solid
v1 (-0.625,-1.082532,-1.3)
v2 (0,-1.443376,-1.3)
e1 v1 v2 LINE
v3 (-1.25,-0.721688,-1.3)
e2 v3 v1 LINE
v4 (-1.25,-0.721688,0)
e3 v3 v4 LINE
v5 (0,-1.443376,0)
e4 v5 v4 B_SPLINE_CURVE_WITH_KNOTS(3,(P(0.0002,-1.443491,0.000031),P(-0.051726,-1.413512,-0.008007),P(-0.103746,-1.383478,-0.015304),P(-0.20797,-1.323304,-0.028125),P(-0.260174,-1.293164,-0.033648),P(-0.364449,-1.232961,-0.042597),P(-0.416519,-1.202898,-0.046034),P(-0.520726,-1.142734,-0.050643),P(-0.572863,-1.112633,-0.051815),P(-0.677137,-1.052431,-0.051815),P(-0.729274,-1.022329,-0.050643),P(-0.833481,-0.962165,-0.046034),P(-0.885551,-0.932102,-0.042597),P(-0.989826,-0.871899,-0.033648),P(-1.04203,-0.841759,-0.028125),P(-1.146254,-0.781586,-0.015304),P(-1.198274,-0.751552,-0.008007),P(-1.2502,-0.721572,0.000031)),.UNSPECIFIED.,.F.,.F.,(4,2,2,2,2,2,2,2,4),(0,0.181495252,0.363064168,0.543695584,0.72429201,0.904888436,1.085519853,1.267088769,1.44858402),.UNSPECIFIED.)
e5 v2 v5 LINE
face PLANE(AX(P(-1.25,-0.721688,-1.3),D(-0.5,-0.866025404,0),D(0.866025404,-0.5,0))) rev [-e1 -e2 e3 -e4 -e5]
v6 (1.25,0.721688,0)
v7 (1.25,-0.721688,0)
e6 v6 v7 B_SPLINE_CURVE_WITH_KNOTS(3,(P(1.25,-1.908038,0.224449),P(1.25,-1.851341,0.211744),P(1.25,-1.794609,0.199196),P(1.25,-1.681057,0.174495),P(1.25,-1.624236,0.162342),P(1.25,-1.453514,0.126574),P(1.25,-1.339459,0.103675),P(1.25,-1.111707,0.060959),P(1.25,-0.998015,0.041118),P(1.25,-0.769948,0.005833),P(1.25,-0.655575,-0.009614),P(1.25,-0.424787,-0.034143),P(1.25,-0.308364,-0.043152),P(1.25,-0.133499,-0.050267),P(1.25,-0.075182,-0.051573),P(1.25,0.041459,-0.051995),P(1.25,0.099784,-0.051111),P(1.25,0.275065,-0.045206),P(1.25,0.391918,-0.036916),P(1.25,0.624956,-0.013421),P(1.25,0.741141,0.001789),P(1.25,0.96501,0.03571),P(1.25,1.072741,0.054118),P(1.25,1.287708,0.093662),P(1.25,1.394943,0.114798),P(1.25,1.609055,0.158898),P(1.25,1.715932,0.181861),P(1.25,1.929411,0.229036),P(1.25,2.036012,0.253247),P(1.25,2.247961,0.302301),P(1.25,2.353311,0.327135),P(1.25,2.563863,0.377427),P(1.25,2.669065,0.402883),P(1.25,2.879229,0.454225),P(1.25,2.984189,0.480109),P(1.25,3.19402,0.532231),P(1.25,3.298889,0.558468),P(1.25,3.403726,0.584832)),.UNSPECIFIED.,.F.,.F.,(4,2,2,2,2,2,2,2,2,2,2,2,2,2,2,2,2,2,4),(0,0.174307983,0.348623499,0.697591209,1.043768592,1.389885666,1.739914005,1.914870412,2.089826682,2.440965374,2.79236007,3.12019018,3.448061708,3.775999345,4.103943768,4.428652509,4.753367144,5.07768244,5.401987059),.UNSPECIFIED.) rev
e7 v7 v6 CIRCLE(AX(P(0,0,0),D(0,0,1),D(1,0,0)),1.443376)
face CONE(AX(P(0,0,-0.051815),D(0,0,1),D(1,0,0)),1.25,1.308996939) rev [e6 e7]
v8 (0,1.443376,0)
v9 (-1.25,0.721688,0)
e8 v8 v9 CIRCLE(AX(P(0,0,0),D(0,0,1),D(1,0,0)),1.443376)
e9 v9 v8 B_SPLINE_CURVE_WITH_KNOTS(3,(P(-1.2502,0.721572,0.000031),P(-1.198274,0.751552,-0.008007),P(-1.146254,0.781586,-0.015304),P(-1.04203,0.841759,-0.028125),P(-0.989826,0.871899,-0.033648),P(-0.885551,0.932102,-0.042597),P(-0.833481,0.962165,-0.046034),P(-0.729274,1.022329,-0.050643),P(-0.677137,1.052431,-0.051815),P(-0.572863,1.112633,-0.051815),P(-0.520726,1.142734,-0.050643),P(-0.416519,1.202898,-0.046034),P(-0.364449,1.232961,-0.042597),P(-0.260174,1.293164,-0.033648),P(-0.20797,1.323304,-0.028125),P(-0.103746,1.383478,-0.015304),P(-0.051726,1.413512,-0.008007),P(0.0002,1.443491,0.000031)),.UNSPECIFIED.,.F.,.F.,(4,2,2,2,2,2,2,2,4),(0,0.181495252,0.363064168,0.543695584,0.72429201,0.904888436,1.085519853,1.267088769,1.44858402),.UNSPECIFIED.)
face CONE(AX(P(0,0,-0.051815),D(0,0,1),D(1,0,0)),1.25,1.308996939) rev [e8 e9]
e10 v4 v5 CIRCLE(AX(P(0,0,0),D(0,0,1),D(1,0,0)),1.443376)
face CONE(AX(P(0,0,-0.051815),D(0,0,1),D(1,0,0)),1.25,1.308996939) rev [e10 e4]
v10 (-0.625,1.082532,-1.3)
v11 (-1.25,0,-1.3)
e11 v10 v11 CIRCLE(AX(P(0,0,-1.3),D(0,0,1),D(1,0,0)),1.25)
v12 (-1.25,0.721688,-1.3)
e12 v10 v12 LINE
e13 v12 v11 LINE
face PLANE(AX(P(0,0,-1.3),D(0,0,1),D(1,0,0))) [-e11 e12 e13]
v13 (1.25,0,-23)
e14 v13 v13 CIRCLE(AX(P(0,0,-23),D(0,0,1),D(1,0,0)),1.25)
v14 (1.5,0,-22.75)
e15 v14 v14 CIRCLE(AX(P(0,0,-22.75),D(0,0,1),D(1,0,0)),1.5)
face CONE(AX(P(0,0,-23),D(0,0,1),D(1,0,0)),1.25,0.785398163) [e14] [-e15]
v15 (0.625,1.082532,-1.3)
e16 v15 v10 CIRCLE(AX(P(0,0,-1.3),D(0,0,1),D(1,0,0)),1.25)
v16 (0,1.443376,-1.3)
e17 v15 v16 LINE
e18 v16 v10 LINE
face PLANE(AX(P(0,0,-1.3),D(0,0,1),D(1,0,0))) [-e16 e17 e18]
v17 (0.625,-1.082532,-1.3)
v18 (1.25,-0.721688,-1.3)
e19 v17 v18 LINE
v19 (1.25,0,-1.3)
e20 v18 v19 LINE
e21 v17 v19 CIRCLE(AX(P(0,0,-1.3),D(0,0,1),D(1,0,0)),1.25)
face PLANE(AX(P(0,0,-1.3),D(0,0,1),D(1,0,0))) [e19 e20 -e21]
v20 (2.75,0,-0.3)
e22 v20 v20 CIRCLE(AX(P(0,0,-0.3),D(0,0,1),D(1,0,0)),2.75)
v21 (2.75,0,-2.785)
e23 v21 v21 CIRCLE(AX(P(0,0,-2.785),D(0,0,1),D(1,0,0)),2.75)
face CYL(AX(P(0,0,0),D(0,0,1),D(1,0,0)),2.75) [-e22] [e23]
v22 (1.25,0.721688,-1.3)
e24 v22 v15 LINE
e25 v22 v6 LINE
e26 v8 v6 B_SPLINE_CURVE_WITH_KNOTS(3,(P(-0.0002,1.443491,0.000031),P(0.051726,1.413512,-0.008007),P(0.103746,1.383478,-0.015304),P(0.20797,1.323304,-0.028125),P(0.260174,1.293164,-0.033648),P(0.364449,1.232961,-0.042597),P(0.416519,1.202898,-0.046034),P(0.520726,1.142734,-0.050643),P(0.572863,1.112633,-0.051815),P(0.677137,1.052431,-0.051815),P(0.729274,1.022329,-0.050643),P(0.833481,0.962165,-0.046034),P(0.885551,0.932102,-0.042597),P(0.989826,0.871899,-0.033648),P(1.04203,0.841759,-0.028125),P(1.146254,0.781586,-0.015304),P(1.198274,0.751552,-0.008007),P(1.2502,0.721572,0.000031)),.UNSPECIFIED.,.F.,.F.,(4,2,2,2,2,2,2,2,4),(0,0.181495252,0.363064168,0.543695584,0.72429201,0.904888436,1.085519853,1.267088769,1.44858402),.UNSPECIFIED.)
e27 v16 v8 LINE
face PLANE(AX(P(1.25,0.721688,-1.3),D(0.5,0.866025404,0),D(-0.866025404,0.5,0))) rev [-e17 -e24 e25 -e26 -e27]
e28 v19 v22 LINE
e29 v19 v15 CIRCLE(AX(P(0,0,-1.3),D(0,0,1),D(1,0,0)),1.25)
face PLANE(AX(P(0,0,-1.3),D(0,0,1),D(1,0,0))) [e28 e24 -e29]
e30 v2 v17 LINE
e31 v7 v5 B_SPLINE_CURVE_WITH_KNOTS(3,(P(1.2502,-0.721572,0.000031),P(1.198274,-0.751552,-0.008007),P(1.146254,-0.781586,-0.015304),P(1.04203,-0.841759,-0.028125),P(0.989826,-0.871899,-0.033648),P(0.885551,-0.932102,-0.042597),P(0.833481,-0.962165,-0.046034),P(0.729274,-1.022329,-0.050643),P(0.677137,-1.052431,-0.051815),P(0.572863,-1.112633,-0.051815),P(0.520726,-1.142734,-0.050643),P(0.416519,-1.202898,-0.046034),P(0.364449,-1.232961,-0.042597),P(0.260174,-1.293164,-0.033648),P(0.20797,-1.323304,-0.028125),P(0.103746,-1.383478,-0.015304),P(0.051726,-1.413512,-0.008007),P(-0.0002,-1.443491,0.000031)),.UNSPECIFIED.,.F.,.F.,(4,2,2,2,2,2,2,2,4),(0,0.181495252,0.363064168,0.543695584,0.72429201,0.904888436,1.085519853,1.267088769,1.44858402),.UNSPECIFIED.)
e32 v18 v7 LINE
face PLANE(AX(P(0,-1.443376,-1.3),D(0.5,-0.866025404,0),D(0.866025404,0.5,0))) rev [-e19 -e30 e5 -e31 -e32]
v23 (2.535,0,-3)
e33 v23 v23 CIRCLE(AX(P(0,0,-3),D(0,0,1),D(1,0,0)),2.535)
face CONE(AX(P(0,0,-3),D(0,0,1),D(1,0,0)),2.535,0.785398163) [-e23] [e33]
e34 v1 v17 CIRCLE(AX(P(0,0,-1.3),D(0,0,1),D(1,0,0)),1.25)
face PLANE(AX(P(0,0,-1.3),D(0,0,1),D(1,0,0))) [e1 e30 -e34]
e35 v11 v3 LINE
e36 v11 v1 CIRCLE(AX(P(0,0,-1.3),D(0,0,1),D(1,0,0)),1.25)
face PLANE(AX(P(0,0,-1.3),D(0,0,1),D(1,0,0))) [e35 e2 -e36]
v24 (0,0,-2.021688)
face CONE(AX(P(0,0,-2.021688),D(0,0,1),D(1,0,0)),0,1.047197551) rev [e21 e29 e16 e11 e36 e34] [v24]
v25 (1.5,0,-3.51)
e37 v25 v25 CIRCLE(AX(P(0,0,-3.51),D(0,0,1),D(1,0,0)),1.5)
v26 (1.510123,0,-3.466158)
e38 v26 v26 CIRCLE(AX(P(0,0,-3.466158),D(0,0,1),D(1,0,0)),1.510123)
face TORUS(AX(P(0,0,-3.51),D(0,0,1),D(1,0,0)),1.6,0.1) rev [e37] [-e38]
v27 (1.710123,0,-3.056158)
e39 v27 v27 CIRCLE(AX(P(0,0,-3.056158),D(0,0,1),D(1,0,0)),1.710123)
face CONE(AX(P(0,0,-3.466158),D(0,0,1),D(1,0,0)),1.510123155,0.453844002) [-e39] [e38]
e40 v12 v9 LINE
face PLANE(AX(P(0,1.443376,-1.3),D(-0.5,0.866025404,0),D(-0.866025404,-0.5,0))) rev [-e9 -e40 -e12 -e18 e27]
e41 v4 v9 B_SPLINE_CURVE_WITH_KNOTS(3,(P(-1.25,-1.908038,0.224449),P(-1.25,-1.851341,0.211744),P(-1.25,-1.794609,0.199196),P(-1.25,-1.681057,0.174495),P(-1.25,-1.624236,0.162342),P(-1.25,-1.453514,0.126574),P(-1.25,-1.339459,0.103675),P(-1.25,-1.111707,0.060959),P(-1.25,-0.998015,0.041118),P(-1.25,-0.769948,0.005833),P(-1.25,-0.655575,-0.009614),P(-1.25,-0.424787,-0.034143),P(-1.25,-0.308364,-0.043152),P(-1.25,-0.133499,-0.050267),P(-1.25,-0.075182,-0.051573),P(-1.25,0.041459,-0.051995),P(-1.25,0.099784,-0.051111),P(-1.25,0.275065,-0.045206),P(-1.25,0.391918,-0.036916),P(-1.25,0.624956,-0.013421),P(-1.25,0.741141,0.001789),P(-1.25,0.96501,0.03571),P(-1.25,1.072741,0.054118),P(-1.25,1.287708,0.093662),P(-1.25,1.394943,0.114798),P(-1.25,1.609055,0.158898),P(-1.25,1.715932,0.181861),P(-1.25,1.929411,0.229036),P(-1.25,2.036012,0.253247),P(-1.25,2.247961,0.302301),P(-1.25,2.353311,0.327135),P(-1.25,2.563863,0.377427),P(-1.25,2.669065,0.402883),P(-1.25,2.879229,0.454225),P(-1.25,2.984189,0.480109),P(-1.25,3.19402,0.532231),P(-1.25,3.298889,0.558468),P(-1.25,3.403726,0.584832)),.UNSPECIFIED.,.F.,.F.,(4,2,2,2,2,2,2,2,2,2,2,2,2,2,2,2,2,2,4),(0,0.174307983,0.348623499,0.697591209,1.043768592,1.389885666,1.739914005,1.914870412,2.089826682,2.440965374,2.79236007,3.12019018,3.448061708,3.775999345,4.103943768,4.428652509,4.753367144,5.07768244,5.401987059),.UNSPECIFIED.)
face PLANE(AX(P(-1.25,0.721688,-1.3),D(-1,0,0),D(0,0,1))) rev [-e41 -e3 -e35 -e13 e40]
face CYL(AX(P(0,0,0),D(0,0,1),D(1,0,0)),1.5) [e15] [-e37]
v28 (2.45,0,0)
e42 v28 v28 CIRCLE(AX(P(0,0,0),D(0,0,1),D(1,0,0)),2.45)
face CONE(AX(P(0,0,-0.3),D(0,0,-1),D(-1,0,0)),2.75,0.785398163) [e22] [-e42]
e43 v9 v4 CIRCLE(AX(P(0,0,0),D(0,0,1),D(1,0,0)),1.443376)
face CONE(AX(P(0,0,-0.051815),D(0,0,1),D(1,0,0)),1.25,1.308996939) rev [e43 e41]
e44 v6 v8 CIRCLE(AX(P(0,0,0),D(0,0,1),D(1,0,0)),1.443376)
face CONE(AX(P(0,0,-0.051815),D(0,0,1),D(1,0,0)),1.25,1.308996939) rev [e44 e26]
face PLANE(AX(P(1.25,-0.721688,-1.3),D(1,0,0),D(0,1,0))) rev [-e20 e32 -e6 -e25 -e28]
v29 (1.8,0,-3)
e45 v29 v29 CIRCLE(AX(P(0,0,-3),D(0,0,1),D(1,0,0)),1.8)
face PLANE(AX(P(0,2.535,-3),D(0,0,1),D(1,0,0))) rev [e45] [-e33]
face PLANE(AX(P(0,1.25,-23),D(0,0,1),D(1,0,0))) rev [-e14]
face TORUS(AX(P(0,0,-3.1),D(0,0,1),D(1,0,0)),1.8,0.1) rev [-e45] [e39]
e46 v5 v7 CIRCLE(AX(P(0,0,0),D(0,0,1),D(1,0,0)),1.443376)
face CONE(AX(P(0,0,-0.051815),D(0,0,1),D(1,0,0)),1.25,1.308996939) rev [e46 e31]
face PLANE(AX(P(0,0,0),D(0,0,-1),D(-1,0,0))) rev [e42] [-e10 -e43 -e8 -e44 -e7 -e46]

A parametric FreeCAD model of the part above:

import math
import FreeCAD as App
import Part
import Sketcher

V = App.Vector
Q = App.Units.Quantity

doc = App.newDocument("Part")
body = doc.addObject("PartDesign::Body", "Body")

sketch1 = body.newObject("Sketcher::SketchObject", "Sketch")
sketch1.AttachmentSupport = (doc.getObject("YZ_Plane"), [""])
sketch1.MapMode = "FlatFace"
sketch1.addGeometry(Part.LineSegment(V(2.45, 0, 0), V(0, 0, 0)), False)
sketch1.addGeometry(Part.LineSegment(V(0, 0, 0), V(0, -23, 0)), False)
sketch1.addGeometry(Part.LineSegment(V(0, -23, 0), V(1.25, -23, 0)), False)
sketch1.addGeometry(Part.LineSegment(V(1.25, -23, 0), V(1.5, -22.75, 0)), False)
sketch1.addGeometry(Part.LineSegment(V(1.5, -22.75, 0), V(1.5, -3.51, 0)), False)
sketch1.addGeometry(Part.ArcOfCircle(Part.Circle(V(1.6, -3.51, 0), V(0, 0, 1), 0.1), math.radians(154), math.radians(180)), False)
sketch1.addGeometry(Part.LineSegment(V(1.51, -3.466, 0), V(1.71, -3.056, 0)), False)
sketch1.addGeometry(Part.ArcOfCircle(Part.Circle(V(1.8, -3.1, 0), V(0, 0, 1), 0.1), math.radians(90), math.radians(154)), False)
sketch1.addGeometry(Part.LineSegment(V(1.8, -3, 0), V(2.535, -3, 0)), False)
sketch1.addGeometry(Part.LineSegment(V(2.535, -3, 0), V(2.75, -2.785, 0)), False)
sketch1.addGeometry(Part.LineSegment(V(2.75, -2.785, 0), V(2.75, -0.3, 0)), False)
sketch1.addGeometry(Part.LineSegment(V(2.75, -0.3, 0), V(2.45, 0, 0)), False)
sketch1.addConstraint(Sketcher.Constraint("Coincident", 0, 2, 1, 1))
sketch1.addConstraint(Sketcher.Constraint("Coincident", 1, 2, 2, 1))
sketch1.addConstraint(Sketcher.Constraint("Coincident", 2, 2, 3, 1))
sketch1.addConstraint(Sketcher.Constraint("Coincident", 3, 2, 4, 1))
sketch1.addConstraint(Sketcher.Constraint("Tangent", 4, 2, 5, 2))
sketch1.addConstraint(Sketcher.Constraint("Tangent", 5, 1, 6, 1))
sketch1.addConstraint(Sketcher.Constraint("Tangent", 6, 2, 7, 2))
sketch1.addConstraint(Sketcher.Constraint("Tangent", 7, 1, 8, 1))
sketch1.addConstraint(Sketcher.Constraint("Coincident", 8, 2, 9, 1))
sketch1.addConstraint(Sketcher.Constraint("Coincident", 9, 2, 10, 1))
sketch1.addConstraint(Sketcher.Constraint("Coincident", 10, 2, 11, 1))
sketch1.addConstraint(Sketcher.Constraint("Coincident", 11, 2, 0, 1))
sketch1.addConstraint(Sketcher.Constraint("Horizontal", 0))
sketch1.addConstraint(Sketcher.Constraint("Vertical", 1))
sketch1.addConstraint(Sketcher.Constraint("Horizontal", 2))
sketch1.addConstraint(Sketcher.Constraint("Vertical", 4))
sketch1.addConstraint(Sketcher.Constraint("Horizontal", 8))
sketch1.addConstraint(Sketcher.Constraint("Vertical", 10))
sketch1.addConstraint(Sketcher.Constraint("Coincident", 0, 2, -1, 1))
sketch1.addConstraint(Sketcher.Constraint("Equal", 5, 7))
sketch1.addConstraint(Sketcher.Constraint("Parallel", 3, 9))
sketch1.addConstraint(Sketcher.Constraint("Perpendicular", 9, 11))
sketch1.addConstraint(Sketcher.Constraint("Radius", 5, 0.1))
sketch1.addConstraint(Sketcher.Constraint("DistanceY", 1, 2, 1, 1, 23.0))
sketch1.addConstraint(Sketcher.Constraint("Angle", 3, Q("45 deg")))
sketch1.addConstraint(Sketcher.Constraint("DistanceY", 7, 1, -1, 1, 3.0))
sketch1.addConstraint(Sketcher.Constraint("DistanceX", 0, 2, 0, 1, 2.45))
sketch1.addConstraint(Sketcher.Constraint("DistanceX", 2, 1, 2, 2, 1.25))
sketch1.addConstraint(Sketcher.Constraint("DistanceY", 4, 1, 4, 2, 19.24))
sketch1.addConstraint(Sketcher.Constraint("DistanceX", -1, 1, 5, 3, 1.6))
sketch1.addConstraint(Sketcher.Constraint("DistanceX", -1, 1, 7, 3, 1.8))
sketch1.addConstraint(Sketcher.Constraint("DistanceY", 10, 2, -1, 1, 0.3))
sketch1.addConstraint(Sketcher.Constraint("DistanceX", 8, 1, 8, 2, 0.735))
revolution = body.newObject("PartDesign::Revolution", "Revolution")
revolution.Profile = sketch1
revolution.ReferenceAxis = (sketch1, ["V_Axis"])
revolution.Angle = 360

sketch2 = body.newObject("Sketcher::SketchObject", "Sketch001")
sketch2.AttachmentSupport = (doc.getObject("XY_Plane"), [""])
sketch2.MapMode = "FlatFace"
sketch2.addGeometry(Part.LineSegment(V(0, 1.4, 0), V(-1.2, 0.7, 0)), False)
sketch2.addGeometry(Part.LineSegment(V(-1.2, 0.7, 0), V(-1.2, -0.7, 0)), False)
sketch2.addGeometry(Part.LineSegment(V(-1.2, -0.7, 0), V(0, -1.4, 0)), False)
sketch2.addGeometry(Part.LineSegment(V(0, -1.4, 0), V(1.2, -0.7, 0)), False)
sketch2.addGeometry(Part.LineSegment(V(1.2, -0.7, 0), V(1.2, 0.7, 0)), False)
sketch2.addGeometry(Part.LineSegment(V(1.2, 0.7, 0), V(0, 1.4, 0)), False)
sketch2.addConstraint(Sketcher.Constraint("Coincident", 0, 2, 1, 1))
sketch2.addConstraint(Sketcher.Constraint("Coincident", 1, 2, 2, 1))
sketch2.addConstraint(Sketcher.Constraint("Coincident", 2, 2, 3, 1))
sketch2.addConstraint(Sketcher.Constraint("Coincident", 3, 2, 4, 1))
sketch2.addConstraint(Sketcher.Constraint("Coincident", 4, 2, 5, 1))
sketch2.addConstraint(Sketcher.Constraint("Coincident", 5, 2, 0, 1))
sketch2.addConstraint(Sketcher.Constraint("Vertical", 1))
sketch2.addConstraint(Sketcher.Constraint("Vertical", 4))
sketch2.addConstraint(Sketcher.Constraint("Symmetric", 0, 2, 3, 2, -1, 1))
sketch2.addConstraint(Sketcher.Constraint("Symmetric", 2, 2, 5, 2, -1, 1))
sketch2.addConstraint(Sketcher.Constraint("PointOnObject", 2, 2, -2))
sketch2.addConstraint(Sketcher.Constraint("Parallel", 2, 5))
sketch2.addConstraint(Sketcher.Constraint("Horizontal", 1, 2, 3, 2))
sketch2.addConstraint(Sketcher.Constraint("Angle", 0, Q("-150 deg")))
sketch2.addConstraint(Sketcher.Constraint("DistanceX", 1, 2, 3, 2, 2.5))
sketch2.addConstraint(Sketcher.Constraint("DistanceY", 1, 2, 1, 1, 1.443376))
pocket1 = body.newObject("PartDesign::Pocket", "Pocket")
pocket1.Profile = sketch2
pocket1.Length = 1.3

sketch3 = body.newObject("Sketcher::SketchObject", "Sketch002")
sketch3.AttachmentSupport = (doc.getObject("YZ_Plane"), [""])
sketch3.MapMode = "FlatFace"
sketch3.addGeometry(Part.LineSegment(V(1.2, -1.3, 0), V(0, -1.3, 0)), False)
sketch3.addGeometry(Part.LineSegment(V(0, -1.3, 0), V(0, -2, 0)), False)
sketch3.addGeometry(Part.LineSegment(V(0, -2, 0), V(1.2, -1.3, 0)), False)
sketch3.addConstraint(Sketcher.Constraint("Coincident", 0, 2, 1, 1))
sketch3.addConstraint(Sketcher.Constraint("Coincident", 1, 2, 2, 1))
sketch3.addConstraint(Sketcher.Constraint("Coincident", 2, 2, 0, 1))
sketch3.addConstraint(Sketcher.Constraint("Horizontal", 0))
sketch3.addConstraint(Sketcher.Constraint("Vertical", 1))
sketch3.addConstraint(Sketcher.Constraint("PointOnObject", 0, 2, -2))
sketch3.addConstraint(Sketcher.Constraint("Angle", 2, Q("30 deg")))
sketch3.addConstraint(Sketcher.Constraint("DistanceX", 0, 2, 0, 1, 1.25))
sketch3.addConstraint(Sketcher.Constraint("DistanceY", 0, 2, -1, 1, 1.3))
groove = body.newObject("PartDesign::Groove", "Groove")
groove.Profile = sketch3
groove.ReferenceAxis = (sketch3, ["V_Axis"])
groove.Angle = 360

sketch4 = body.newObject("Sketcher::SketchObject", "Sketch003")
sketch4.AttachmentSupport = (doc.getObject("YZ_Plane"), [""])
sketch4.MapMode = "FlatFace"
sketch4.addGeometry(Part.LineSegment(V(1.44, 0, 0), V(1.25, 0, 0)), False)
sketch4.addGeometry(Part.LineSegment(V(1.25, 0, 0), V(1.25, -0.05, 0)), False)
sketch4.addGeometry(Part.LineSegment(V(1.25, -0.05, 0), V(1.44, 0, 0)), False)
sketch4.addConstraint(Sketcher.Constraint("Coincident", 0, 2, 1, 1))
sketch4.addConstraint(Sketcher.Constraint("Coincident", 1, 2, 2, 1))
sketch4.addConstraint(Sketcher.Constraint("Coincident", 2, 2, 0, 1))
sketch4.addConstraint(Sketcher.Constraint("Horizontal", 0))
sketch4.addConstraint(Sketcher.Constraint("Vertical", 1))
sketch4.addConstraint(Sketcher.Constraint("PointOnObject", 0, 2, -1))
sketch4.addConstraint(Sketcher.Constraint("Angle", 2, Q("15 deg")))
sketch4.addConstraint(Sketcher.Constraint("DistanceX", -1, 1, 0, 2, 1.25))
sketch4.addConstraint(Sketcher.Constraint("DistanceX", 0, 2, 0, 1, 0.193376))
groove2 = body.newObject("PartDesign::Groove", "Groove001")
groove2.Profile = sketch4
groove2.ReferenceAxis = (sketch4, ["V_Axis"])
groove2.Angle = 360

doc.recompute()
